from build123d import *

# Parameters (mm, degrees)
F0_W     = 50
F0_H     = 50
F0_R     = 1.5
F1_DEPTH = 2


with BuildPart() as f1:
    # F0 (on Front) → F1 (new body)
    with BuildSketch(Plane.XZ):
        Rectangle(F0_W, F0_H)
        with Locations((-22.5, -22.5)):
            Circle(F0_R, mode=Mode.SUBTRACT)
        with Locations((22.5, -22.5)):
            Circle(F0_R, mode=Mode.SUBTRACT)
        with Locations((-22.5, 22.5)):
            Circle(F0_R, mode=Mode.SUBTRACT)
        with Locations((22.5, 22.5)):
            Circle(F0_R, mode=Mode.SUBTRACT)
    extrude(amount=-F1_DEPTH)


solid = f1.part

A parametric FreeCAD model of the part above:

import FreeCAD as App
import Part
import Sketcher

doc = App.newDocument("Part")
params = doc.addObject("Spreadsheet::Sheet", "Params")
for row, (alias, value) in enumerate([
    ("sketch1_diameter", "3 mm"),
    ("sketch1_width", "50 mm"),
    ("pad1_length", "2 mm"),
], start=1):
    params.set(f"A{row}", alias)
    params.set(f"B{row}", "=" + value)
    params.setAlias(f"B{row}", alias)

body = doc.addObject("PartDesign::Body", "Body")

# Sketch on XZ plane
sketch1 = body.newObject("Sketcher::SketchObject", "Sketch")
sketch1.AttachmentSupport = (doc.getObject("XZ_Plane"), [""])
sketch1.MapMode = "FlatFace"
sketch1.addGeometry([
    Part.LineSegment(App.Vector(-25, 25, 0), App.Vector(-25, -25, 0)),  # 0
    Part.LineSegment(App.Vector(-25, -25, 0), App.Vector(25, -25, 0)),  # 1
    Part.LineSegment(App.Vector(25, -25, 0), App.Vector(25, 25, 0)),  # 2
    Part.LineSegment(App.Vector(25, 25, 0), App.Vector(-25, 25, 0)),  # 3
    Part.Circle(App.Vector(-22.5, -22.5, 0), App.Vector(0, 0, 1), 1.5),  # 4
    Part.Circle(App.Vector(22.5, -22.5, 0), App.Vector(0, 0, 1), 1.5),  # 5
    Part.Circle(App.Vector(-22.5, 22.5, 0), App.Vector(0, 0, 1), 1.5),  # 6
    Part.Circle(App.Vector(22.5, 22.5, 0), App.Vector(0, 0, 1), 1.5),  # 7
], False)
sketch1.addConstraint([
    Sketcher.Constraint("Coincident", 0, 2, 1, 1),
    Sketcher.Constraint("Coincident", 1, 2, 2, 1),
    Sketcher.Constraint("Coincident", 2, 2, 3, 1),
    Sketcher.Constraint("Coincident", 3, 2, 0, 1),
    Sketcher.Constraint("Vertical", 0),
    Sketcher.Constraint("Horizontal", 1),
    Sketcher.Constraint("Vertical", 2),
    Sketcher.Constraint("Horizontal", 3),
    Sketcher.Constraint("Equal", 4, 5),
    Sketcher.Constraint("Equal", 5, 6),
    Sketcher.Constraint("Equal", 6, 7),
    Sketcher.Constraint("Symmetric", 5, 3, 6, 3, -1, 1),
    Sketcher.Constraint("Symmetric", 4, 3, 7, 3, -1, 1),
    Sketcher.Constraint("Symmetric", 0, 2, 2, 2, -1, 1),
    Sketcher.Constraint("Symmetric", 4, 3, 5, 3, -2),
    Sketcher.Constraint("Equal", 3, 0),
    Sketcher.Constraint("Diameter", 4, 3.0),
    Sketcher.Constraint("DistanceX", 1, 1, 1, 2, 50.0),
    Sketcher.Constraint("DistanceX", 4, 3, 5, 3, 45.0),
    Sketcher.Constraint("DistanceY", 4, 3, 6, 3, 45.0),
])
sketch1.setExpression("Constraints[16]", "Params.sketch1_diameter")
sketch1.setExpression("Constraints[17]", "Params.sketch1_width")
pad1 = body.newObject("PartDesign::Pad", "Pad")
pad1.Profile = sketch1
pad1.setExpression("Length", "Params.pad1_length")
pad1.Reversed = True

doc.recompute()
